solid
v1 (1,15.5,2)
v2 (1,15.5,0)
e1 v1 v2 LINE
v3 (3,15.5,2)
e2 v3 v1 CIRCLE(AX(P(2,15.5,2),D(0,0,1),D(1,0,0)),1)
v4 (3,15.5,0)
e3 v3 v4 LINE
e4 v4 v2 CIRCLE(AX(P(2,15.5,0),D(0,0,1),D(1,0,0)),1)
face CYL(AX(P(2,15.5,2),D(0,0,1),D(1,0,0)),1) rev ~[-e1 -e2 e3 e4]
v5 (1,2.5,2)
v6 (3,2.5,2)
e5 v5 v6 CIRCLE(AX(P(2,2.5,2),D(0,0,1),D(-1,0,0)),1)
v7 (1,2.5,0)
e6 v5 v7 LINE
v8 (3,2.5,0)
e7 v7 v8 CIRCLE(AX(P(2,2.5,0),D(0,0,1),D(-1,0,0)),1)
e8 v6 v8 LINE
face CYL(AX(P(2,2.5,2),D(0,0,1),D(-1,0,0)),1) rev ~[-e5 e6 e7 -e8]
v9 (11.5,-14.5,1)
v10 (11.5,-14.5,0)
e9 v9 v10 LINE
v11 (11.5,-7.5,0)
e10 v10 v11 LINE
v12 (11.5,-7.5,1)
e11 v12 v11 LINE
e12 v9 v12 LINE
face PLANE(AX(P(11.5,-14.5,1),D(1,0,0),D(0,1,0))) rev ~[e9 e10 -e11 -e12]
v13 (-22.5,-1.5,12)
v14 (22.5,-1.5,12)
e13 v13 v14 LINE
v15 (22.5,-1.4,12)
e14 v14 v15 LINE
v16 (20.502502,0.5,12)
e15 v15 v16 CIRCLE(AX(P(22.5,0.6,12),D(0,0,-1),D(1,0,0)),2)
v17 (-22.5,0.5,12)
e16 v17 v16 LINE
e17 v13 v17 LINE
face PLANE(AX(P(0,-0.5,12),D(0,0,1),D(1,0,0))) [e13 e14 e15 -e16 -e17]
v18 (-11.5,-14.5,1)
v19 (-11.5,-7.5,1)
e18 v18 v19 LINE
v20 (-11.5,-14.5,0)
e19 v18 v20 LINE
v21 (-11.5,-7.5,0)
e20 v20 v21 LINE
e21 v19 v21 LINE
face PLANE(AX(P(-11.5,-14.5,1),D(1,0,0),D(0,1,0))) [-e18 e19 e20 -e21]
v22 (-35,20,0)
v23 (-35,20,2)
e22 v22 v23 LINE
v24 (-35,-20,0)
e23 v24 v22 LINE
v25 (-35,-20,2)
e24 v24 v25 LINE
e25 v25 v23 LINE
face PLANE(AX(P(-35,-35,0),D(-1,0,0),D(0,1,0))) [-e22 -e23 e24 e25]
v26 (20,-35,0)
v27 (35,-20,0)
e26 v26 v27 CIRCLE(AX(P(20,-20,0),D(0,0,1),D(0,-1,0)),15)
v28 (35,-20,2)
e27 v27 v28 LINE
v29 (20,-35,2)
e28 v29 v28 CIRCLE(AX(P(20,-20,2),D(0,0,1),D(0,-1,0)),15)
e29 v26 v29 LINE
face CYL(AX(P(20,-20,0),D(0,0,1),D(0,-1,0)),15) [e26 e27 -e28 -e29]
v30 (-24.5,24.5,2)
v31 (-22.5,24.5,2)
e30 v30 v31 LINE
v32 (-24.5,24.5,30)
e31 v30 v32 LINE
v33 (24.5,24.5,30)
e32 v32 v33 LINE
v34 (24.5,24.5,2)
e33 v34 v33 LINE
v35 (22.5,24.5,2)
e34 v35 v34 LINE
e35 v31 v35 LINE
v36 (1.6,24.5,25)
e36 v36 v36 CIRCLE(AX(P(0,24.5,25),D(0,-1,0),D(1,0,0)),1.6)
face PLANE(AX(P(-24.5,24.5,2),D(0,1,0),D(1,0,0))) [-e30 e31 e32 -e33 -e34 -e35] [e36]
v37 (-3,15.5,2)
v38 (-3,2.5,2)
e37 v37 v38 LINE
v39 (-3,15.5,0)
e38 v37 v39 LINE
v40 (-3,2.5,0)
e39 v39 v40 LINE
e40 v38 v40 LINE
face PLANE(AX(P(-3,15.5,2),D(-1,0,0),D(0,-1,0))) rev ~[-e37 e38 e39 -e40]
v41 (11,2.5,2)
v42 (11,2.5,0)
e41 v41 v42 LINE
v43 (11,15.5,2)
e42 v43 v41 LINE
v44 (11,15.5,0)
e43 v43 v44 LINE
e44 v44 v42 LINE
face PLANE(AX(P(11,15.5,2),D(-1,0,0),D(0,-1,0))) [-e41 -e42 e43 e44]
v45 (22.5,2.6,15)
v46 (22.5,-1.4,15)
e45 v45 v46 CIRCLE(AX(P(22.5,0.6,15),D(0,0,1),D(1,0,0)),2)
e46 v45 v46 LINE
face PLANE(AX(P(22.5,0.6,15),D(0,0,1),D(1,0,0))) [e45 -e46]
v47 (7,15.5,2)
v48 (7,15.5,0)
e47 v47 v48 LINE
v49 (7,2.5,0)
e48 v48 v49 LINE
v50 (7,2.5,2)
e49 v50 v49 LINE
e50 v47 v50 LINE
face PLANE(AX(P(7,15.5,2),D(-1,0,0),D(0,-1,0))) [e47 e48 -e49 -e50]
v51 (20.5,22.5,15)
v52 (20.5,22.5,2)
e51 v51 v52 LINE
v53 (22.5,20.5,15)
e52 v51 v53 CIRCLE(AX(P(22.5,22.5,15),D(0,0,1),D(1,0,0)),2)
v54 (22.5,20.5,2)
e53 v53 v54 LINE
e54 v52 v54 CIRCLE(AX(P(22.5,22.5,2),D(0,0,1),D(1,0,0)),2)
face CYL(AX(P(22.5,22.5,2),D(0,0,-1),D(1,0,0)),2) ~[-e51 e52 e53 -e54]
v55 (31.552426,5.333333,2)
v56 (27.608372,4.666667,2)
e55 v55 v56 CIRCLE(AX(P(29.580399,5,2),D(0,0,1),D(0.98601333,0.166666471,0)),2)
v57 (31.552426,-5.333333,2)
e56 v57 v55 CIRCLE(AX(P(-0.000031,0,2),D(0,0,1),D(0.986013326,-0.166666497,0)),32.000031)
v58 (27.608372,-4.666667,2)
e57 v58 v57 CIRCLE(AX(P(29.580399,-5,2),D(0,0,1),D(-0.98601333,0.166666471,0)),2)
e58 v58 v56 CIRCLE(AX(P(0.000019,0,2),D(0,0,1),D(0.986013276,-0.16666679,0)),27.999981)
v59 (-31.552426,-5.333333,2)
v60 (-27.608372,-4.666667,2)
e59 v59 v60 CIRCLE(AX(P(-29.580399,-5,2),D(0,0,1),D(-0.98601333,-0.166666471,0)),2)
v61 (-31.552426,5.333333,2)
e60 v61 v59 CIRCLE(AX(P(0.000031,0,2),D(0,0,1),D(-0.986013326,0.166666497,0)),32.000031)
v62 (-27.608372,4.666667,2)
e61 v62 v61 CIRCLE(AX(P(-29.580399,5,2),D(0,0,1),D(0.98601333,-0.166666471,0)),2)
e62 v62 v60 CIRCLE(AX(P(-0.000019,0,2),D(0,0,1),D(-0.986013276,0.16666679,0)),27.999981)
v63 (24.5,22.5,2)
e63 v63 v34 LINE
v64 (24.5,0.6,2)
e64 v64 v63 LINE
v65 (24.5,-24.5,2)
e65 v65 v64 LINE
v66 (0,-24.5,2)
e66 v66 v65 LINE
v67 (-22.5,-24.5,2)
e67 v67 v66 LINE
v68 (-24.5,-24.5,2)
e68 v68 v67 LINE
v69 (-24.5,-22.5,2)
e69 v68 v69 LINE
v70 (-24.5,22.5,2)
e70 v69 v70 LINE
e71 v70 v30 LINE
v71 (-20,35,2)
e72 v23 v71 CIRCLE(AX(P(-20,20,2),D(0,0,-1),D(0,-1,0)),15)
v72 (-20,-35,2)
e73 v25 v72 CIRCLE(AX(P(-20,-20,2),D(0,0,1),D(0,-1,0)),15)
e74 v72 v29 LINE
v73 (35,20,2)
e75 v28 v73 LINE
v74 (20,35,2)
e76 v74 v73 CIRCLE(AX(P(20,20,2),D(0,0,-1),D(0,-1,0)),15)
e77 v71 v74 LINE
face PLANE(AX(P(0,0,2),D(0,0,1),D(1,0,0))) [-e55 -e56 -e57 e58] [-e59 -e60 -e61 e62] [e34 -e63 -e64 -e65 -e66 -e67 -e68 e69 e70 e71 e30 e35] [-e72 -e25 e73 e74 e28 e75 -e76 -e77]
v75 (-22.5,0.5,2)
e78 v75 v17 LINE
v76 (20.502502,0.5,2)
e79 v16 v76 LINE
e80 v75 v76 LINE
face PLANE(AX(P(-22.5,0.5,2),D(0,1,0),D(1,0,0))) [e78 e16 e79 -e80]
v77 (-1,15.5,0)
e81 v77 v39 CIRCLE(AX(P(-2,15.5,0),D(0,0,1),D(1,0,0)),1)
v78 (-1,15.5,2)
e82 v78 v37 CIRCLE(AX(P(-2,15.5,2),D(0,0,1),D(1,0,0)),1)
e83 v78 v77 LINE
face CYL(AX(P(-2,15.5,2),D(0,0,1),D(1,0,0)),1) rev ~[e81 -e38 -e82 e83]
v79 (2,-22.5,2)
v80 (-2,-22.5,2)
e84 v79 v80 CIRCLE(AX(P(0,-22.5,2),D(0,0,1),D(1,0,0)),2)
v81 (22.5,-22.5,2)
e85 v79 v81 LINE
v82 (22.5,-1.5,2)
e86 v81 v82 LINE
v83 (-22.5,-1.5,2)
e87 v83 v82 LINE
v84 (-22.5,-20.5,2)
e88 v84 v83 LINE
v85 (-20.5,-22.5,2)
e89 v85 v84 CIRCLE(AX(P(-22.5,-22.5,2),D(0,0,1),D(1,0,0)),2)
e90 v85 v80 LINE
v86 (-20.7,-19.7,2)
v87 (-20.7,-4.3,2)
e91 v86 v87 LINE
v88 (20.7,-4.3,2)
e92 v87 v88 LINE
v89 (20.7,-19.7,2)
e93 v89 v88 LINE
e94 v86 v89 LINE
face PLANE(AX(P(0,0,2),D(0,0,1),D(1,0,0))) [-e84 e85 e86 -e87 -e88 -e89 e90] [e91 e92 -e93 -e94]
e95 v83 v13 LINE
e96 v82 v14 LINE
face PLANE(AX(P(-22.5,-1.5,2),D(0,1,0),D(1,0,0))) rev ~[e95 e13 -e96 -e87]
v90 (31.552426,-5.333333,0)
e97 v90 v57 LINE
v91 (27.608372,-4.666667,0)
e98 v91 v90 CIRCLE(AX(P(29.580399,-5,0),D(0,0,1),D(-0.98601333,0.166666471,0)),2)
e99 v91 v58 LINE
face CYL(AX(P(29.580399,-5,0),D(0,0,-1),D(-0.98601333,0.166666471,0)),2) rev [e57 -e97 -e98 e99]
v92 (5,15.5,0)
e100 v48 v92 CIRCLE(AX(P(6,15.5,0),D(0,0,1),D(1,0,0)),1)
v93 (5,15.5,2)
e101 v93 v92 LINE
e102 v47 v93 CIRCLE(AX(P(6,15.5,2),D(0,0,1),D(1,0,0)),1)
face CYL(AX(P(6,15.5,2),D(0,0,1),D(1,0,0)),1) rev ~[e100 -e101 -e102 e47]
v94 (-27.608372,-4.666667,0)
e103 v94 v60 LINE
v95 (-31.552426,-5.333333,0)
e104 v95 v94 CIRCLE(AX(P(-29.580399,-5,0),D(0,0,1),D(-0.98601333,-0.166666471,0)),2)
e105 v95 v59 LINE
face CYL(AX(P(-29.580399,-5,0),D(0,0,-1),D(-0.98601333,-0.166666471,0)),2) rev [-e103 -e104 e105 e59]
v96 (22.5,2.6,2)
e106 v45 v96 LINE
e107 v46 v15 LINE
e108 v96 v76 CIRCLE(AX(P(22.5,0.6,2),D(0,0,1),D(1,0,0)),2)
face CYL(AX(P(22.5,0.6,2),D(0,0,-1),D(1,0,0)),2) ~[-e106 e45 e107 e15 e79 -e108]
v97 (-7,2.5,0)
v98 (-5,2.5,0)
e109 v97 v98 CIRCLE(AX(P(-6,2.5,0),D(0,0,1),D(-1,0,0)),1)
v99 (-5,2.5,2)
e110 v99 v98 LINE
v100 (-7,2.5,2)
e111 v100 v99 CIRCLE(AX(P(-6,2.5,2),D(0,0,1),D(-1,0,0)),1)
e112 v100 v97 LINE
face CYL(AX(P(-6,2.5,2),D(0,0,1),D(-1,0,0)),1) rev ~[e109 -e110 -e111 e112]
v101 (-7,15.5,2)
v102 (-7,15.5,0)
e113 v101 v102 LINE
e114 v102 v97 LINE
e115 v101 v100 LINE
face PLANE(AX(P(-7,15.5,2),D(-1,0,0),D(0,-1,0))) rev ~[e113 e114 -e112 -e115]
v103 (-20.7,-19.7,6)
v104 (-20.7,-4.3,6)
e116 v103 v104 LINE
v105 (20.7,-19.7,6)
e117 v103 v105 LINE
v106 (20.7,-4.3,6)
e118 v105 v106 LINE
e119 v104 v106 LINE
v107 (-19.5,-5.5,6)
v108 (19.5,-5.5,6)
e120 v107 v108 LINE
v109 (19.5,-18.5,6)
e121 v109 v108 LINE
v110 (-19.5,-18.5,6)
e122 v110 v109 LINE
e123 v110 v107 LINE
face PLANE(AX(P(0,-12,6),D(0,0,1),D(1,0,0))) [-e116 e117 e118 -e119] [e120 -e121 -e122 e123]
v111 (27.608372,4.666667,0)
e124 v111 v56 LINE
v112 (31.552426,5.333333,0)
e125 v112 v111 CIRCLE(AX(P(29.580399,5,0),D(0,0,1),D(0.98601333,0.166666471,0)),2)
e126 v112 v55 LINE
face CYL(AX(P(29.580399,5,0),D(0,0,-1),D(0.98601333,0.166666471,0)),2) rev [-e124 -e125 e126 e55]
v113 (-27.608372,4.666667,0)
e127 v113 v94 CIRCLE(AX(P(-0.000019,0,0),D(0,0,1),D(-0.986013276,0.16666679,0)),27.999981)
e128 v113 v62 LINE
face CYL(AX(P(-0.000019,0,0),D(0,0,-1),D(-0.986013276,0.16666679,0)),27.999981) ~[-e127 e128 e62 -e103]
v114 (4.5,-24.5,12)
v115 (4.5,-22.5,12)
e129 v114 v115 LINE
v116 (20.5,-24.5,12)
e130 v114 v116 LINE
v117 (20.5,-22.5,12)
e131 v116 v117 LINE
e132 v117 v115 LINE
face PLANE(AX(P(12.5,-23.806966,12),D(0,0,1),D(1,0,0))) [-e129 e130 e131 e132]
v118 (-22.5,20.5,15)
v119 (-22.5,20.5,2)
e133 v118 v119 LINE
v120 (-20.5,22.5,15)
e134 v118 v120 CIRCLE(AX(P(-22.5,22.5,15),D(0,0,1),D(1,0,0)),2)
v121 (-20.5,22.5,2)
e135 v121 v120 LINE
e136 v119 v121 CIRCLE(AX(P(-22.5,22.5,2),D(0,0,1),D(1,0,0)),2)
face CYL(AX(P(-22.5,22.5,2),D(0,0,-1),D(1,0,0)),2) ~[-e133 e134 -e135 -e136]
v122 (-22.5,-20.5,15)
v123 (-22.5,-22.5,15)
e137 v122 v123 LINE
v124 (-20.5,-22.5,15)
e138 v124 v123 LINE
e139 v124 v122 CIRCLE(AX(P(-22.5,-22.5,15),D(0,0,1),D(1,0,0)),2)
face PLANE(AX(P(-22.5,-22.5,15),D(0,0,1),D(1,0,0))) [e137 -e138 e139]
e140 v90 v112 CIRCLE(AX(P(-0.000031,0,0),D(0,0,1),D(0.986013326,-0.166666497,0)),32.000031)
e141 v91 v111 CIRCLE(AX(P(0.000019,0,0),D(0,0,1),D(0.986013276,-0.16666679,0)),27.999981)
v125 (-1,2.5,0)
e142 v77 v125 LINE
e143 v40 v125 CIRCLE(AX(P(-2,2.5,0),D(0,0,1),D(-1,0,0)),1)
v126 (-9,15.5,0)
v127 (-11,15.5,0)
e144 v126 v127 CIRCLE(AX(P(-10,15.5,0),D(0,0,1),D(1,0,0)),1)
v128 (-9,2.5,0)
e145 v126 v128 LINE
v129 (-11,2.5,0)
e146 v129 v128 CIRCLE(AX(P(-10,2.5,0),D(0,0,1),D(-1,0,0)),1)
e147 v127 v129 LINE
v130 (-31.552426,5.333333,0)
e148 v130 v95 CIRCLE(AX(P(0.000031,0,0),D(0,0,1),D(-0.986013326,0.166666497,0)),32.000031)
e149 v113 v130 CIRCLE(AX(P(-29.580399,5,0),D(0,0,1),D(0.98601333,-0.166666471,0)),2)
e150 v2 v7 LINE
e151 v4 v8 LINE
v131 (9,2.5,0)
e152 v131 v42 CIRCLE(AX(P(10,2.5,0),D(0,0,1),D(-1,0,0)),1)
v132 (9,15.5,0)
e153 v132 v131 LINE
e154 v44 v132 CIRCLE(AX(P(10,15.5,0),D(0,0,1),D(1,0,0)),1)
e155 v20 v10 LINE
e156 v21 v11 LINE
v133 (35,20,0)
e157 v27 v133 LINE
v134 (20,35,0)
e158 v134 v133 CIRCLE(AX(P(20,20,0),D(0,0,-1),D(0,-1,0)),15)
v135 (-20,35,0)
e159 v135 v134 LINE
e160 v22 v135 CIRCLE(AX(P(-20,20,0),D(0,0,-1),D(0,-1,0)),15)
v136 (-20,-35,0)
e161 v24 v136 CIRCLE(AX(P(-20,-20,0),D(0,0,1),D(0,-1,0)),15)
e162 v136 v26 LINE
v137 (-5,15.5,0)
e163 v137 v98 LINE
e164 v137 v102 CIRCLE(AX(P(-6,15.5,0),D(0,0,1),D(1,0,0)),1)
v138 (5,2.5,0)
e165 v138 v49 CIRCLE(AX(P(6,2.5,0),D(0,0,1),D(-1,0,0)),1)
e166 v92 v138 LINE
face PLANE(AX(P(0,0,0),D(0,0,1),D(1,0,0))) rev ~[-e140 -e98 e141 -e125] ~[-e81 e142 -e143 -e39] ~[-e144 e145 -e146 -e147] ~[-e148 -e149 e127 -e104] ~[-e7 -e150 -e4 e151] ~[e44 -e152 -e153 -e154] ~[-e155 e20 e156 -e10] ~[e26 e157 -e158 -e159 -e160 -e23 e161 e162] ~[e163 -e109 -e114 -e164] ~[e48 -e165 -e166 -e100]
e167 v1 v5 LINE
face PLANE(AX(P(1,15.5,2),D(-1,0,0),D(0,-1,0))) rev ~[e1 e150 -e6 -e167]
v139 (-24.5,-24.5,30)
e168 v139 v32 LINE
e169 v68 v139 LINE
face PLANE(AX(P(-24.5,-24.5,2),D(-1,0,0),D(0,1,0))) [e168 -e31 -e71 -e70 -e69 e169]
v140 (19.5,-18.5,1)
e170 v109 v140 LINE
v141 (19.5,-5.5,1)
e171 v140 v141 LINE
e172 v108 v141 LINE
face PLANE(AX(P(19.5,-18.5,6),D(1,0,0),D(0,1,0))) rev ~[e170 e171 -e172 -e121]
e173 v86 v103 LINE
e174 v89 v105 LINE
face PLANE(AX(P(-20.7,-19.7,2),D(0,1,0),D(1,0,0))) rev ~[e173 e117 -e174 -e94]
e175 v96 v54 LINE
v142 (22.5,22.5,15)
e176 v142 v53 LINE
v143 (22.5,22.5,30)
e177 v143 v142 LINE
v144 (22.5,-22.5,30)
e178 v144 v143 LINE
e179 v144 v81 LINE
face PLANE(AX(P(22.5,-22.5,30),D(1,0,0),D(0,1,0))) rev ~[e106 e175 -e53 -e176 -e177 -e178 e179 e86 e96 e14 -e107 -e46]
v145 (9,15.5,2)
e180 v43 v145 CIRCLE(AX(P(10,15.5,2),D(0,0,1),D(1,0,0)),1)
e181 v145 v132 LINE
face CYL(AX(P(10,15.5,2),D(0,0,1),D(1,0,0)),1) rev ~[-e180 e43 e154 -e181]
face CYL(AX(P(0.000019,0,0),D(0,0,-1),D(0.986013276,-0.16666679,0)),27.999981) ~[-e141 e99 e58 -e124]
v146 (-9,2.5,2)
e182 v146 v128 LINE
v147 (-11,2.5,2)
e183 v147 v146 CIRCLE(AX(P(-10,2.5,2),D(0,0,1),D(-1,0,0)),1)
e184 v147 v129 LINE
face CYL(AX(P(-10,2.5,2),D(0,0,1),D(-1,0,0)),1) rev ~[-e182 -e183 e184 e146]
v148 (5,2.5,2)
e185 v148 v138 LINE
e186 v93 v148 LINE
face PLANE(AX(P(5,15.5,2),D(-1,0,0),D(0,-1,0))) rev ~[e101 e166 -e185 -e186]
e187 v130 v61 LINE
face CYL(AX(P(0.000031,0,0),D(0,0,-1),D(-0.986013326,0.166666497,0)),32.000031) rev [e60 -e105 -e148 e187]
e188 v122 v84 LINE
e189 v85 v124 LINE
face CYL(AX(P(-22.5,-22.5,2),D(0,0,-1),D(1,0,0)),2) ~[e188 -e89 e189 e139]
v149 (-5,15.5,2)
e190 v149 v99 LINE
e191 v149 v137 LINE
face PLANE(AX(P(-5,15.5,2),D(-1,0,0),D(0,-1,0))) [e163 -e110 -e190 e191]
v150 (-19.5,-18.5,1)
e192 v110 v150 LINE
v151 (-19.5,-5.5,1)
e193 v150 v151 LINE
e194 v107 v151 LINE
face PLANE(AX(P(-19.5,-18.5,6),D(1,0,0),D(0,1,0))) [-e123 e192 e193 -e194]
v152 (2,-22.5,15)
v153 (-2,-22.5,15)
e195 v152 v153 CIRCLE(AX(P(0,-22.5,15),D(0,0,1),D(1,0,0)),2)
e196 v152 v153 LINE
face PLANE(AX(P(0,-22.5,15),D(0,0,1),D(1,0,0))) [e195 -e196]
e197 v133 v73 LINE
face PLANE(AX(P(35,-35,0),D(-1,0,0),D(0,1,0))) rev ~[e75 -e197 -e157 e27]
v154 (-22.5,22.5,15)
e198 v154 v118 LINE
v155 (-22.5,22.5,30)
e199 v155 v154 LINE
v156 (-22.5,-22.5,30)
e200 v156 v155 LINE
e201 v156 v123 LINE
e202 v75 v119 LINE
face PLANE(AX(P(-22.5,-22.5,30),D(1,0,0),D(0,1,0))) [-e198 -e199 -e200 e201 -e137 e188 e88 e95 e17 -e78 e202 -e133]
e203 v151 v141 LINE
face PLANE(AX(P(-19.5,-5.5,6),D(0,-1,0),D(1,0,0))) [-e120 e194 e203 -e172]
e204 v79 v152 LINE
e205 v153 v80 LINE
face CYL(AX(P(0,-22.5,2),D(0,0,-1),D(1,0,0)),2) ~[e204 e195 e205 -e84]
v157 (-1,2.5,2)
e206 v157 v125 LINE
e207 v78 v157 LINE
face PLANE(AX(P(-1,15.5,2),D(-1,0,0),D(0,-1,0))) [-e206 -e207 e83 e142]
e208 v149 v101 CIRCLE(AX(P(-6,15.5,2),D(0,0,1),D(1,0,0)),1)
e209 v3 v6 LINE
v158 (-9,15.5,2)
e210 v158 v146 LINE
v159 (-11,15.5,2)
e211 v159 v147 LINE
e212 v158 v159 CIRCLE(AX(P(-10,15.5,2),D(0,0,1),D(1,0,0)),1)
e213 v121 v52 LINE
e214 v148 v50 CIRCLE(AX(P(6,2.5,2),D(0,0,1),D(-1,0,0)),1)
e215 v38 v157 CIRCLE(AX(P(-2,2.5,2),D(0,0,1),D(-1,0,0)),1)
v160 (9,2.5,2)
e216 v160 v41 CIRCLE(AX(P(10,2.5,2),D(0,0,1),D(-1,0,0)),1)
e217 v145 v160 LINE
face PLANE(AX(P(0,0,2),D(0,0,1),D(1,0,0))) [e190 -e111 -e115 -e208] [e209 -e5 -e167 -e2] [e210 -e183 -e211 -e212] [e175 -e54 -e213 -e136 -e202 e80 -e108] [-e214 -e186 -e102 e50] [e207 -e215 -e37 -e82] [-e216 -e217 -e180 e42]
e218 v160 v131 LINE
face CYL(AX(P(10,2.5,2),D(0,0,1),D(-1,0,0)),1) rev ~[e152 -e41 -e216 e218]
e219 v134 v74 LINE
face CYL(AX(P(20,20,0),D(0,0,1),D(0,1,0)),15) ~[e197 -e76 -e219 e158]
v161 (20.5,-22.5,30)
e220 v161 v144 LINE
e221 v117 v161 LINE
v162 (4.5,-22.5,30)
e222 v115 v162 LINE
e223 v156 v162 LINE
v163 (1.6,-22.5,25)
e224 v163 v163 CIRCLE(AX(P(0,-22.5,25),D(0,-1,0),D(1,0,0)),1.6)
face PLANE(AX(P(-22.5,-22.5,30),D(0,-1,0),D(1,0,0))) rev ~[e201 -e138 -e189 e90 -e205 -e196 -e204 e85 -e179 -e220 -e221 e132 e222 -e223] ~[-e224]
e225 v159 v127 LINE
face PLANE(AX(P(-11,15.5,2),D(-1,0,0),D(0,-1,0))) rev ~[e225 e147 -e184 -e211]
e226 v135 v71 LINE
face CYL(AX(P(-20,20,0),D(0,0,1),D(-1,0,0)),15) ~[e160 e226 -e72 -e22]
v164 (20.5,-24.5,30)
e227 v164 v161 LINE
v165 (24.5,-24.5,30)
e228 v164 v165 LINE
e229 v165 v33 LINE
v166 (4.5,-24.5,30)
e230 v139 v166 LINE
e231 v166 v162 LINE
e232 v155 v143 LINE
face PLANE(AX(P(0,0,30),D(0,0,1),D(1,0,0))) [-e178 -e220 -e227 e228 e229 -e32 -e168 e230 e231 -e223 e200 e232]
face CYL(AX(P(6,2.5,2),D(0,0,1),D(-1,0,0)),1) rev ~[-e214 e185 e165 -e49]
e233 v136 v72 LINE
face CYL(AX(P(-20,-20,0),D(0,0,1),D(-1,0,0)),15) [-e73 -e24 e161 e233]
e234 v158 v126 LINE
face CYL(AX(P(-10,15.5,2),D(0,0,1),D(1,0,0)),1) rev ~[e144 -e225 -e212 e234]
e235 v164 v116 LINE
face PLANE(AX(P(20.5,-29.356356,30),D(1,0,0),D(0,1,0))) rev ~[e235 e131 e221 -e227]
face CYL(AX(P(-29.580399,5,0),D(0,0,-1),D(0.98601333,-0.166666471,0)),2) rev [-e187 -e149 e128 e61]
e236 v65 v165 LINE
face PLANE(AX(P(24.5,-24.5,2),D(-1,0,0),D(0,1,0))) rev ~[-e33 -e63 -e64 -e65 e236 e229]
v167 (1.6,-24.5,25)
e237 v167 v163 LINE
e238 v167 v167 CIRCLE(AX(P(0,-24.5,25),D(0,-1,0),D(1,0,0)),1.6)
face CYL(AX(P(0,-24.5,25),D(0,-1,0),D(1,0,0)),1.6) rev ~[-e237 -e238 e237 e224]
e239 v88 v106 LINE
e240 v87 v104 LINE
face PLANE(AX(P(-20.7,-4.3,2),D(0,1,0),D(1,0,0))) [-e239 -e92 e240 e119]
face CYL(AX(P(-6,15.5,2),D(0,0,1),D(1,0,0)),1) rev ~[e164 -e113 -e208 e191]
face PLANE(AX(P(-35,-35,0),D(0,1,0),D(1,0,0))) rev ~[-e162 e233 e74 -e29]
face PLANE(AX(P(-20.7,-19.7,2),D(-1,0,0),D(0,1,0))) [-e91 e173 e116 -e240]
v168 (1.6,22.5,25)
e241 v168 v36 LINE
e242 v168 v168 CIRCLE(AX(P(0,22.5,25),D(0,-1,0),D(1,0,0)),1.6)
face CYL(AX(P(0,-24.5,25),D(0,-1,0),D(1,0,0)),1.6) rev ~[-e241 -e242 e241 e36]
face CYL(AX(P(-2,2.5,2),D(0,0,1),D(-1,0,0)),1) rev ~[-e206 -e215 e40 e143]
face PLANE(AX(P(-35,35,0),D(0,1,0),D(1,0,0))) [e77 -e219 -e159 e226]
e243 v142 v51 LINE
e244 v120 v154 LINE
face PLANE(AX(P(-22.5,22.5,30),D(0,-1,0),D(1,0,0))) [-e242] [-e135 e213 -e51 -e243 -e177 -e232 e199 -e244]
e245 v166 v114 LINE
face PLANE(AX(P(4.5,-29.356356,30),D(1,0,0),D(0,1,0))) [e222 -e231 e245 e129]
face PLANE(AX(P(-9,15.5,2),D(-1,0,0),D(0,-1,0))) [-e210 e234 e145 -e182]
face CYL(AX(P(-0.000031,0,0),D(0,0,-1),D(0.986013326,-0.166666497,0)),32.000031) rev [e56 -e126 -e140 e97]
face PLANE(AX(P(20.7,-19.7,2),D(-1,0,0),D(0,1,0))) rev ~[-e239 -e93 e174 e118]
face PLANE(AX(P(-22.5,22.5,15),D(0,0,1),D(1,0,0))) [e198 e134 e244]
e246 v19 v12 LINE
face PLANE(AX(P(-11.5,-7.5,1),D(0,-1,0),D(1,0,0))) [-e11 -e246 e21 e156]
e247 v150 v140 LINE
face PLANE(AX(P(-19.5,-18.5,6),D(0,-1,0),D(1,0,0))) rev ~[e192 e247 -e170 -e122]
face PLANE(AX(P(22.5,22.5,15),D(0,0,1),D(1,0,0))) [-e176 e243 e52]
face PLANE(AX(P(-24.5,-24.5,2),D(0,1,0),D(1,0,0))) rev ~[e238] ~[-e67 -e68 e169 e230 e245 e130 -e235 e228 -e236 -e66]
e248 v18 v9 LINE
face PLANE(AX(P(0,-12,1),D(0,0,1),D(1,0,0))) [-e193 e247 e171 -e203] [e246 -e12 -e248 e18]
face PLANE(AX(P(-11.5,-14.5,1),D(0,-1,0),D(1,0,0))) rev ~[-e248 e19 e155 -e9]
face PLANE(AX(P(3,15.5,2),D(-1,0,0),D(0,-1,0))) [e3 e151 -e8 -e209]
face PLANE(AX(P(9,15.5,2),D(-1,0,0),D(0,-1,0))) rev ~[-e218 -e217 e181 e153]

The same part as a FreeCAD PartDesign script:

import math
import FreeCAD as App
import Part
import Sketcher

V = App.Vector


def edges_at(feature, points):
    """Names of the edges that pass closest to the given points."""
    edges = feature.Shape.Edges
    near = lambda p: min(range(len(edges)), key=lambda i: edges[i].distToShape(Part.Vertex(*p))[0])
    return sorted({f"Edge{near(p) + 1}" for p in points})

doc = App.newDocument("Part")
params = doc.addObject("Spreadsheet::Sheet", "Params")
for row, (alias, value) in enumerate([
    ("sketch1_radius", "2 mm"),
    ("sketch1_radius2", "2 mm"),
    ("sketch1_width", "70 mm"),
    ("sketch1_height", "70 mm"),
    ("pad1_length", "2 mm"),
    ("sketch2_width", "49 mm"),
    ("pad2_length", "28 mm"),
    ("sketch3_width", "45 mm"),
    ("pocket1_length", "28 mm"),
    ("sketch4_width", "16 mm"),
    ("pocket2_length", "18 mm"),
    ("sketch5_width", "45 mm"),
    ("sketch5_height", "2 mm"),
    ("pad3_length", "10 mm"),
    ("sketch6_width", "41.4 mm"),
    ("sketch6_height", "15.4 mm"),
    ("pad4_length", "4 mm"),
    ("sketch7_width", "39 mm"),
    ("sketch7_height", "13 mm"),
    ("pocket3_length", "5 mm"),
    ("sketch8_width", "23 mm"),
    ("sketch8_height", "7 mm"),
    ("sketch9_radius", "1 mm"),
    ("sketch9_height", "13 mm"),
    ("pocket5_length", "5 mm"),
    ("sketch10_diameter", "3.2 mm"),
    ("fillet_radius", "15 mm"),
    ("sketch11_diameter", "4 mm"),
    ("pad5_length", "13 mm"),
], start=1):
    params.set(f"A{row}", alias)
    params.set(f"B{row}", "=" + value)
    params.setAlias(f"B{row}", alias)

body = doc.addObject("PartDesign::Body", "Body")

sketch1 = body.newObject("Sketcher::SketchObject", "Sketch")
sketch1.AttachmentSupport = (doc.getObject("XY_Plane"), [""])
sketch1.MapMode = "FlatFace"
sketch1.addGeometry(Part.LineSegment(V(-35, 35, 0), V(-35, -35, 0)), False)
sketch1.addGeometry(Part.LineSegment(V(-35, -35, 0), V(35, -35, 0)), False)
sketch1.addGeometry(Part.LineSegment(V(35, -35, 0), V(35, 35, 0)), False)
sketch1.addGeometry(Part.LineSegment(V(35, 35, 0), V(-35, 35, 0)), False)
sketch1.addGeometry(Part.ArcOfCircle(Part.Circle(V(-29.580399, 5, 0), V(0, 0, 1), 2), math.radians(-9.594057), math.radians(170.405943)), False)
sketch1.addGeometry(Part.ArcOfCircle(Part.Circle(V(-0.000019, 0, 0), V(0, 0, 1), 27.999981), math.radians(170.405925), math.radians(189.594075)), False)
sketch1.addGeometry(Part.ArcOfCircle(Part.Circle(V(-29.580399, -5, 0), V(0, 0, 1), 2), math.radians(-170.405943), math.radians(9.594057)), False)
sketch1.addGeometry(Part.ArcOfCircle(Part.Circle(V(0.000031, 0, 0), V(0, 0, 1), 32.000031), math.radians(170.405942), math.radians(189.594058)), False)
sketch1.addGeometry(Part.ArcOfCircle(Part.Circle(V(29.580399, -5, 0), V(0, 0, 1), 2), math.radians(170.405943), math.radians(350.405943)), False)
sketch1.addGeometry(Part.ArcOfCircle(Part.Circle(V(0.000019, 0, 0), V(0, 0, 1), 27.999981), math.radians(-9.594075), math.radians(9.594075)), False)
sketch1.addGeometry(Part.ArcOfCircle(Part.Circle(V(29.580399, 5, 0), V(0, 0, 1), 2), math.radians(9.594057), math.radians(189.594057)), False)
sketch1.addGeometry(Part.ArcOfCircle(Part.Circle(V(-0.000031, 0, 0), V(0, 0, 1), 32.000031), math.radians(-9.594058), math.radians(9.594058)), False)
sketch1.addConstraint(Sketcher.Constraint("Coincident", 0, 2, 1, 1))
sketch1.addConstraint(Sketcher.Constraint("Coincident", 1, 2, 2, 1))
sketch1.addConstraint(Sketcher.Constraint("Coincident", 2, 2, 3, 1))
sketch1.addConstraint(Sketcher.Constraint("Coincident", 3, 2, 0, 1))
sketch1.addConstraint(Sketcher.Constraint("Coincident", 4, 1, 5, 1))
sketch1.addConstraint(Sketcher.Constraint("Coincident", 5, 2, 6, 2))
sketch1.addConstraint(Sketcher.Constraint("Coincident", 6, 1, 7, 2))
sketch1.addConstraint(Sketcher.Constraint("Coincident", 7, 1, 4, 2))
sketch1.addConstraint(Sketcher.Constraint("Coincident", 8, 1, 9, 1))
sketch1.addConstraint(Sketcher.Constraint("Coincident", 9, 2, 10, 2))
sketch1.addConstraint(Sketcher.Constraint("Coincident", 10, 1, 11, 2))
sketch1.addConstraint(Sketcher.Constraint("Coincident", 11, 1, 8, 2))
sketch1.addConstraint(Sketcher.Constraint("Vertical", 0))
sketch1.addConstraint(Sketcher.Constraint("Horizontal", 1))
sketch1.addConstraint(Sketcher.Constraint("Vertical", 2))
sketch1.addConstraint(Sketcher.Constraint("Horizontal", 3))
sketch1.addConstraint(Sketcher.Constraint("PointOnObject", 5, 3, -1))
sketch1.addConstraint(Sketcher.Constraint("PointOnObject", 7, 3, -1))
sketch1.addConstraint(Sketcher.Constraint("PointOnObject", 9, 3, -1))
sketch1.addConstraint(Sketcher.Constraint("PointOnObject", 11, 3, -1))
sketch1.addConstraint(Sketcher.Constraint("Radius", 4, 2.0))
sketch1.addConstraint(Sketcher.Constraint("Radius", 8, 2.0))
sketch1.addConstraint(Sketcher.Constraint("DistanceX", 1, 1, 1, 2, 70.0))
sketch1.addConstraint(Sketcher.Constraint("DistanceY", 0, 2, 0, 1, 70.0))
sketch1.addConstraint(Sketcher.Constraint("DistanceY", -1, 1, 4, 3, 5.0))
sketch1.addConstraint(Sketcher.Constraint("DistanceY", 6, 3, -1, 1, 5.0))
sketch1.addConstraint(Sketcher.Constraint("DistanceY", 8, 3, -1, 1, 5.0))
sketch1.addConstraint(Sketcher.Constraint("DistanceY", -1, 1, 10, 3, 5.0))
sketch1.addConstraint(Sketcher.Constraint("DistanceX", 0, 2, -1, 1, 35.0))
sketch1.addConstraint(Sketcher.Constraint("DistanceY", 0, 2, -1, 1, 35.0))
sketch1.addConstraint(Sketcher.Constraint("DistanceY", 6, 1, 4, 1, 10.0))
sketch1.addConstraint(Sketcher.Constraint("DistanceY", 5, 2, 7, 1, 10.0))
sketch1.addConstraint(Sketcher.Constraint("DistanceY", 8, 1, 10, 1, 10.0))
sketch1.addConstraint(Sketcher.Constraint("DistanceY", 11, 1, 9, 2, 10.0))
sketch1.addConstraint(Sketcher.Constraint("Radius", 5, 27.999981))
sketch1.addConstraint(Sketcher.Constraint("Radius", 7, 32.000031))
sketch1.addConstraint(Sketcher.Constraint("Radius", 9, 27.999981))
sketch1.addConstraint(Sketcher.Constraint("Radius", 11, 32.000031))
sketch1.addConstraint(Sketcher.Constraint("DistanceX", 4, 3, -1, 1, 29.580399))
sketch1.addConstraint(Sketcher.Constraint("DistanceX", -1, 1, 8, 3, 29.580399))
sketch1.addConstraint(Sketcher.Constraint("DistanceX", 5, 2, -1, 1, 27.608372))
sketch1.addConstraint(Sketcher.Constraint("DistanceX", -1, 1, 9, 2, 27.608372))
sketch1.addConstraint(Sketcher.Constraint("DistanceX", 4, 1, 11, 3, 27.608341))
sketch1.addConstraint(Sketcher.Constraint("DistanceX", 7, 3, 8, 1, 27.608341))
sketch1.setExpression("Constraints[20]", "Params.sketch1_radius")
sketch1.setExpression("Constraints[21]", "Params.sketch1_radius2")
sketch1.setExpression("Constraints[22]", "Params.sketch1_width")
sketch1.setExpression("Constraints[23]", "Params.sketch1_height")
pad1 = body.newObject("PartDesign::Pad", "Pad")
pad1.Profile = sketch1
pad1.setExpression("Length", "Params.pad1_length")

sketch2 = body.newObject("Sketcher::SketchObject", "Sketch001")
sketch2.AttachmentSupport = (doc.getObject("XY_Plane"), [""])
sketch2.MapMode = "FlatFace"
sketch2.AttachmentOffset = App.Placement(V(0, 0, 2), App.Rotation())
sketch2.addGeometry(Part.LineSegment(V(-24, 24, 0), V(-24, -24, 0)), False)
sketch2.addGeometry(Part.LineSegment(V(-24, -24, 0), V(24, -24, 0)), False)
sketch2.addGeometry(Part.LineSegment(V(24, -24, 0), V(24, 24, 0)), False)
sketch2.addGeometry(Part.LineSegment(V(24, 24, 0), V(-24, 24, 0)), False)
sketch2.addConstraint(Sketcher.Constraint("Coincident", 0, 2, 1, 1))
sketch2.addConstraint(Sketcher.Constraint("Coincident", 1, 2, 2, 1))
sketch2.addConstraint(Sketcher.Constraint("Coincident", 2, 2, 3, 1))
sketch2.addConstraint(Sketcher.Constraint("Coincident", 3, 2, 0, 1))
sketch2.addConstraint(Sketcher.Constraint("Vertical", 0))
sketch2.addConstraint(Sketcher.Constraint("Horizontal", 1))
sketch2.addConstraint(Sketcher.Constraint("Vertical", 2))
sketch2.addConstraint(Sketcher.Constraint("Horizontal", 3))
sketch2.addConstraint(Sketcher.Constraint("Symmetric", 0, 2, 2, 2, -1, 1))
sketch2.addConstraint(Sketcher.Constraint("Equal", 3, 0))
sketch2.addConstraint(Sketcher.Constraint("DistanceX", 1, 1, 1, 2, 49.0))
sketch2.setExpression("Constraints[10]", "Params.sketch2_width")
pad2 = body.newObject("PartDesign::Pad", "Pad001")
pad2.Profile = sketch2
pad2.setExpression("Length", "Params.pad2_length")

sketch3 = body.newObject("Sketcher::SketchObject", "Sketch002")
sketch3.AttachmentSupport = (doc.getObject("XY_Plane"), [""])
sketch3.MapMode = "FlatFace"
sketch3.AttachmentOffset = App.Placement(V(0, 0, 30), App.Rotation())
sketch3.addGeometry(Part.LineSegment(V(-22, 22, 0), V(-22, -22, 0)), False)
sketch3.addGeometry(Part.LineSegment(V(-22, -22, 0), V(22, -22, 0)), False)
sketch3.addGeometry(Part.LineSegment(V(22, -22, 0), V(22, 22, 0)), False)
sketch3.addGeometry(Part.LineSegment(V(22, 22, 0), V(-22, 22, 0)), False)
sketch3.addConstraint(Sketcher.Constraint("Coincident", 0, 2, 1, 1))
sketch3.addConstraint(Sketcher.Constraint("Coincident", 1, 2, 2, 1))
sketch3.addConstraint(Sketcher.Constraint("Coincident", 2, 2, 3, 1))
sketch3.addConstraint(Sketcher.Constraint("Coincident", 3, 2, 0, 1))
sketch3.addConstraint(Sketcher.Constraint("Vertical", 0))
sketch3.addConstraint(Sketcher.Constraint("Horizontal", 1))
sketch3.addConstraint(Sketcher.Constraint("Vertical", 2))
sketch3.addConstraint(Sketcher.Constraint("Horizontal", 3))
sketch3.addConstraint(Sketcher.Constraint("Symmetric", 0, 2, 2, 2, -1, 1))
sketch3.addConstraint(Sketcher.Constraint("Equal", 3, 0))
sketch3.addConstraint(Sketcher.Constraint("DistanceX", 1, 1, 1, 2, 45.0))
sketch3.setExpression("Constraints[10]", "Params.sketch3_width")
pocket1 = body.newObject("PartDesign::Pocket", "Pocket")
pocket1.Profile = sketch3
pocket1.setExpression("Length", "Params.pocket1_length")

sketch4 = body.newObject("Sketcher::SketchObject", "Sketch003")
sketch4.AttachmentSupport = (doc.getObject("XY_Plane"), [""])
sketch4.MapMode = "FlatFace"
sketch4.AttachmentOffset = App.Placement(V(0, 0, 30), App.Rotation())
sketch4.addGeometry(Part.LineSegment(V(4, -18, 0), V(4, -29, 0)), False)
sketch4.addGeometry(Part.LineSegment(V(4, -29, 0), V(20, -29, 0)), False)
sketch4.addGeometry(Part.LineSegment(V(20, -29, 0), V(20, -18, 0)), False)
sketch4.addGeometry(Part.LineSegment(V(20, -18, 0), V(4, -18, 0)), False)
sketch4.addConstraint(Sketcher.Constraint("Coincident", 0, 2, 1, 1))
sketch4.addConstraint(Sketcher.Constraint("Coincident", 1, 2, 2, 1))
sketch4.addConstraint(Sketcher.Constraint("Coincident", 2, 2, 3, 1))
sketch4.addConstraint(Sketcher.Constraint("Coincident", 3, 2, 0, 1))
sketch4.addConstraint(Sketcher.Constraint("Vertical", 0))
sketch4.addConstraint(Sketcher.Constraint("Horizontal", 1))
sketch4.addConstraint(Sketcher.Constraint("Vertical", 2))
sketch4.addConstraint(Sketcher.Constraint("Horizontal", 3))
sketch4.addConstraint(Sketcher.Constraint("DistanceX", 1, 1, 1, 2, 16.0))
sketch4.addConstraint(Sketcher.Constraint("DistanceX", -1, 1, 0, 2, 4.5))
sketch4.addConstraint(Sketcher.Constraint("DistanceY", 0, 2, 0, 1, 11.09878))
sketch4.addConstraint(Sketcher.Constraint("DistanceY", 0, 2, -1, 1, 29.356356))
sketch4.setExpression("Constraints[8]", "Params.sketch4_width")
pocket2 = body.newObject("PartDesign::Pocket", "Pocket001")
pocket2.Profile = sketch4
pocket2.setExpression("Length", "Params.pocket2_length")

sketch5 = body.newObject("Sketcher::SketchObject", "Sketch004")
sketch5.AttachmentSupport = (doc.getObject("XY_Plane"), [""])
sketch5.MapMode = "FlatFace"
sketch5.AttachmentOffset = App.Placement(V(0, 0, 2), App.Rotation())
sketch5.addGeometry(Part.LineSegment(V(-22.5, 0.5, 0), V(-22.5, -1.5, 0)), False)
sketch5.addGeometry(Part.LineSegment(V(-22.5, -1.5, 0), V(22.5, -1.5, 0)), False)
sketch5.addGeometry(Part.LineSegment(V(22.5, -1.5, 0), V(22.5, 0.5, 0)), False)
sketch5.addGeometry(Part.LineSegment(V(22.5, 0.5, 0), V(-22.5, 0.5, 0)), False)
sketch5.addConstraint(Sketcher.Constraint("Coincident", 0, 2, 1, 1))
sketch5.addConstraint(Sketcher.Constraint("Coincident", 1, 2, 2, 1))
sketch5.addConstraint(Sketcher.Constraint("Coincident", 2, 2, 3, 1))
sketch5.addConstraint(Sketcher.Constraint("Coincident", 3, 2, 0, 1))
sketch5.addConstraint(Sketcher.Constraint("Vertical", 0))
sketch5.addConstraint(Sketcher.Constraint("Horizontal", 1))
sketch5.addConstraint(Sketcher.Constraint("Vertical", 2))
sketch5.addConstraint(Sketcher.Constraint("Horizontal", 3))
sketch5.addConstraint(Sketcher.Constraint("DistanceX", 1, 1, 1, 2, 45.0))
sketch5.addConstraint(Sketcher.Constraint("DistanceY", 0, 2, 0, 1, 2.0))
sketch5.addConstraint(Sketcher.Constraint("DistanceX", 0, 2, -1, 1, 22.5))
sketch5.addConstraint(Sketcher.Constraint("DistanceY", 0, 2, -1, 1, 1.5))
sketch5.setExpression("Constraints[8]", "Params.sketch5_width")
sketch5.setExpression("Constraints[9]", "Params.sketch5_height")
pad3 = body.newObject("PartDesign::Pad", "Pad002")
pad3.Profile = sketch5
pad3.setExpression("Length", "Params.pad3_length")

sketch6 = body.newObject("Sketcher::SketchObject", "Sketch005")
sketch6.AttachmentSupport = (doc.getObject("XY_Plane"), [""])
sketch6.MapMode = "FlatFace"
sketch6.AttachmentOffset = App.Placement(V(0, 0, 2), App.Rotation())
sketch6.addGeometry(Part.LineSegment(V(-21, -4, 0), V(-21, -20, 0)), False)
sketch6.addGeometry(Part.LineSegment(V(-21, -20, 0), V(21, -20, 0)), False)
sketch6.addGeometry(Part.LineSegment(V(21, -20, 0), V(21, -4, 0)), False)
sketch6.addGeometry(Part.LineSegment(V(21, -4, 0), V(-21, -4, 0)), False)
sketch6.addConstraint(Sketcher.Constraint("Coincident", 0, 2, 1, 1))
sketch6.addConstraint(Sketcher.Constraint("Coincident", 1, 2, 2, 1))
sketch6.addConstraint(Sketcher.Constraint("Coincident", 2, 2, 3, 1))
sketch6.addConstraint(Sketcher.Constraint("Coincident", 3, 2, 0, 1))
sketch6.addConstraint(Sketcher.Constraint("Vertical", 0))
sketch6.addConstraint(Sketcher.Constraint("Horizontal", 1))
sketch6.addConstraint(Sketcher.Constraint("Vertical", 2))
sketch6.addConstraint(Sketcher.Constraint("Horizontal", 3))
sketch6.addConstraint(Sketcher.Constraint("DistanceX", 1, 1, 1, 2, 41.4))
sketch6.addConstraint(Sketcher.Constraint("DistanceY", 0, 2, 0, 1, 15.4))
sketch6.addConstraint(Sketcher.Constraint("DistanceX", 0, 2, -1, 1, 20.7))
sketch6.addConstraint(Sketcher.Constraint("DistanceY", 0, 2, -1, 1, 19.7))
sketch6.setExpression("Constraints[8]", "Params.sketch6_width")
sketch6.setExpression("Constraints[9]", "Params.sketch6_height")
pad4 = body.newObject("PartDesign::Pad", "Pad003")
pad4.Profile = sketch6
pad4.setExpression("Length", "Params.pad4_length")

sketch7 = body.newObject("Sketcher::SketchObject", "Sketch006")
sketch7.AttachmentSupport = (doc.getObject("XY_Plane"), [""])
sketch7.MapMode = "FlatFace"
sketch7.AttachmentOffset = App.Placement(V(0, 0, 6), App.Rotation())
sketch7.addGeometry(Part.LineSegment(V(-20, -6, 0), V(-20, -18, 0)), False)
sketch7.addGeometry(Part.LineSegment(V(-20, -18, 0), V(20, -18, 0)), False)
sketch7.addGeometry(Part.LineSegment(V(20, -18, 0), V(20, -6, 0)), False)
sketch7.addGeometry(Part.LineSegment(V(20, -6, 0), V(-20, -6, 0)), False)
sketch7.addConstraint(Sketcher.Constraint("Coincident", 0, 2, 1, 1))
sketch7.addConstraint(Sketcher.Constraint("Coincident", 1, 2, 2, 1))
sketch7.addConstraint(Sketcher.Constraint("Coincident", 2, 2, 3, 1))
sketch7.addConstraint(Sketcher.Constraint("Coincident", 3, 2, 0, 1))
sketch7.addConstraint(Sketcher.Constraint("Vertical", 0))
sketch7.addConstraint(Sketcher.Constraint("Horizontal", 1))
sketch7.addConstraint(Sketcher.Constraint("Vertical", 2))
sketch7.addConstraint(Sketcher.Constraint("Horizontal", 3))
sketch7.addConstraint(Sketcher.Constraint("DistanceX", 1, 1, 1, 2, 39.0))
sketch7.addConstraint(Sketcher.Constraint("DistanceY", 0, 2, 0, 1, 13.0))
sketch7.addConstraint(Sketcher.Constraint("DistanceX", 0, 2, -1, 1, 19.5))
sketch7.addConstraint(Sketcher.Constraint("DistanceY", 0, 2, -1, 1, 18.5))
sketch7.setExpression("Constraints[8]", "Params.sketch7_width")
sketch7.setExpression("Constraints[9]", "Params.sketch7_height")
pocket3 = body.newObject("PartDesign::Pocket", "Pocket002")
pocket3.Profile = sketch7
pocket3.setExpression("Length", "Params.pocket3_length")

sketch8 = body.newObject("Sketcher::SketchObject", "Sketch007")
sketch8.AttachmentSupport = (doc.getObject("XY_Plane"), [""])
sketch8.MapMode = "FlatFace"
sketch8.AttachmentOffset = App.Placement(V(0, 0, 1), App.Rotation())
sketch8.addGeometry(Part.LineSegment(V(-12, -8, 0), V(-12, -14, 0)), False)
sketch8.addGeometry(Part.LineSegment(V(-12, -14, 0), V(12, -14, 0)), False)
sketch8.addGeometry(Part.LineSegment(V(12, -14, 0), V(12, -8, 0)), False)
sketch8.addGeometry(Part.LineSegment(V(12, -8, 0), V(-12, -8, 0)), False)
sketch8.addConstraint(Sketcher.Constraint("Coincident", 0, 2, 1, 1))
sketch8.addConstraint(Sketcher.Constraint("Coincident", 1, 2, 2, 1))
sketch8.addConstraint(Sketcher.Constraint("Coincident", 2, 2, 3, 1))
sketch8.addConstraint(Sketcher.Constraint("Coincident", 3, 2, 0, 1))
sketch8.addConstraint(Sketcher.Constraint("Vertical", 0))
sketch8.addConstraint(Sketcher.Constraint("Horizontal", 1))
sketch8.addConstraint(Sketcher.Constraint("Vertical", 2))
sketch8.addConstraint(Sketcher.Constraint("Horizontal", 3))
sketch8.addConstraint(Sketcher.Constraint("DistanceX", 1, 1, 1, 2, 23.0))
sketch8.addConstraint(Sketcher.Constraint("DistanceY", 0, 2, 0, 1, 7.0))
sketch8.addConstraint(Sketcher.Constraint("DistanceX", 0, 2, -1, 1, 11.5))
sketch8.addConstraint(Sketcher.Constraint("DistanceY", 0, 2, -1, 1, 14.5))
sketch8.setExpression("Constraints[8]", "Params.sketch8_width")
sketch8.setExpression("Constraints[9]", "Params.sketch8_height")
pocket4 = body.newObject("PartDesign::Pocket", "Pocket003")
pocket4.Profile = sketch8
pocket4.Type = "ThroughAll"

sketch9 = body.newObject("Sketcher::SketchObject", "Sketch008")
sketch9.AttachmentSupport = (doc.getObject("XY_Plane"), [""])
sketch9.MapMode = "FlatFace"
sketch9.AttachmentOffset = App.Placement(V(0, 0, 2), App.Rotation())
sketch9.addGeometry(Part.LineSegment(V(-11, 15.5, 0), V(-11, 2.5, 0)), False)
sketch9.addGeometry(Part.ArcOfCircle(Part.Circle(V(-10, 2.5, 0), V(0, 0, 1), 1), math.radians(180), math.radians(360)), False)
sketch9.addGeometry(Part.LineSegment(V(-9, 2.5, 0), V(-9, 15.5, 0)), False)
sketch9.addGeometry(Part.ArcOfCircle(Part.Circle(V(-10, 15.5, 0), V(0, 0, 1), 1), math.radians(0), math.radians(180)), False)
sketch9.addGeometry(Part.LineSegment(V(-7, 15.5, 0), V(-7, 2.5, 0)), False)
sketch9.addGeometry(Part.ArcOfCircle(Part.Circle(V(-6, 2.5, 0), V(0, 0, 1), 1), math.radians(180), math.radians(360)), False)
sketch9.addGeometry(Part.LineSegment(V(-5, 2.5, 0), V(-5, 15.5, 0)), False)
sketch9.addGeometry(Part.ArcOfCircle(Part.Circle(V(-6, 15.5, 0), V(0, 0, 1), 1), math.radians(0), math.radians(180)), False)
sketch9.addGeometry(Part.LineSegment(V(-3, 15.5, 0), V(-3, 2.5, 0)), False)
sketch9.addGeometry(Part.ArcOfCircle(Part.Circle(V(-2, 2.5, 0), V(0, 0, 1), 1), math.radians(180), math.radians(360)), False)
sketch9.addGeometry(Part.LineSegment(V(-1, 2.5, 0), V(-1, 15.5, 0)), False)
sketch9.addGeometry(Part.ArcOfCircle(Part.Circle(V(-2, 15.5, 0), V(0, 0, 1), 1), math.radians(0), math.radians(180)), False)
sketch9.addGeometry(Part.LineSegment(V(1, 15.5, 0), V(1, 2.5, 0)), False)
sketch9.addGeometry(Part.ArcOfCircle(Part.Circle(V(2, 2.5, 0), V(0, 0, 1), 1), math.radians(180), math.radians(360)), False)
sketch9.addGeometry(Part.LineSegment(V(3, 2.5, 0), V(3, 15.5, 0)), False)
sketch9.addGeometry(Part.ArcOfCircle(Part.Circle(V(2, 15.5, 0), V(0, 0, 1), 1), math.radians(0), math.radians(180)), False)
sketch9.addGeometry(Part.LineSegment(V(5, 15.5, 0), V(5, 2.5, 0)), False)
sketch9.addGeometry(Part.ArcOfCircle(Part.Circle(V(6, 2.5, 0), V(0, 0, 1), 1), math.radians(180), math.radians(360)), False)
sketch9.addGeometry(Part.LineSegment(V(7, 2.5, 0), V(7, 15.5, 0)), False)
sketch9.addGeometry(Part.ArcOfCircle(Part.Circle(V(6, 15.5, 0), V(0, 0, 1), 1), math.radians(0), math.radians(180)), False)
sketch9.addGeometry(Part.LineSegment(V(9, 15.5, 0), V(9, 2.5, 0)), False)
sketch9.addGeometry(Part.ArcOfCircle(Part.Circle(V(10, 2.5, 0), V(0, 0, 1), 1), math.radians(180), math.radians(360)), False)
sketch9.addGeometry(Part.LineSegment(V(11, 2.5, 0), V(11, 15.5, 0)), False)
sketch9.addGeometry(Part.ArcOfCircle(Part.Circle(V(10, 15.5, 0), V(0, 0, 1), 1), math.radians(0), math.radians(180)), False)
sketch9.addConstraint(Sketcher.Constraint("Tangent", 0, 2, 1, 1))
sketch9.addConstraint(Sketcher.Constraint("Tangent", 1, 2, 2, 1))
sketch9.addConstraint(Sketcher.Constraint("Tangent", 2, 2, 3, 1))
sketch9.addConstraint(Sketcher.Constraint("Tangent", 3, 2, 0, 1))
sketch9.addConstraint(Sketcher.Constraint("Tangent", 4, 2, 5, 1))
sketch9.addConstraint(Sketcher.Constraint("Tangent", 5, 2, 6, 1))
sketch9.addConstraint(Sketcher.Constraint("Tangent", 6, 2, 7, 1))
sketch9.addConstraint(Sketcher.Constraint("Tangent", 7, 2, 4, 1))
sketch9.addConstraint(Sketcher.Constraint("Tangent", 8, 2, 9, 1))
sketch9.addConstraint(Sketcher.Constraint("Tangent", 9, 2, 10, 1))
sketch9.addConstraint(Sketcher.Constraint("Tangent", 10, 2, 11, 1))
sketch9.addConstraint(Sketcher.Constraint("Tangent", 11, 2, 8, 1))
sketch9.addConstraint(Sketcher.Constraint("Tangent", 12, 2, 13, 1))
sketch9.addConstraint(Sketcher.Constraint("Tangent", 13, 2, 14, 1))
sketch9.addConstraint(Sketcher.Constraint("Tangent", 14, 2, 15, 1))
sketch9.addConstraint(Sketcher.Constraint("Tangent", 15, 2, 12, 1))
sketch9.addConstraint(Sketcher.Constraint("Tangent", 16, 2, 17, 1))
sketch9.addConstraint(Sketcher.Constraint("Tangent", 17, 2, 18, 1))
sketch9.addConstraint(Sketcher.Constraint("Tangent", 18, 2, 19, 1))
sketch9.addConstraint(Sketcher.Constraint("Tangent", 19, 2, 16, 1))
sketch9.addConstraint(Sketcher.Constraint("Tangent", 20, 2, 21, 1))
sketch9.addConstraint(Sketcher.Constraint("Tangent", 21, 2, 22, 1))
sketch9.addConstraint(Sketcher.Constraint("Tangent", 22, 2, 23, 1))
sketch9.addConstraint(Sketcher.Constraint("Tangent", 23, 2, 20, 1))
sketch9.addConstraint(Sketcher.Constraint("Vertical", 0))
sketch9.addConstraint(Sketcher.Constraint("Vertical", 2))
sketch9.addConstraint(Sketcher.Constraint("Vertical", 4))
sketch9.addConstraint(Sketcher.Constraint("Vertical", 6))
sketch9.addConstraint(Sketcher.Constraint("Vertical", 8))
sketch9.addConstraint(Sketcher.Constraint("Vertical", 10))
sketch9.addConstraint(Sketcher.Constraint("Vertical", 12))
sketch9.addConstraint(Sketcher.Constraint("Vertical", 14))
sketch9.addConstraint(Sketcher.Constraint("Vertical", 16))
sketch9.addConstraint(Sketcher.Constraint("Vertical", 18))
sketch9.addConstraint(Sketcher.Constraint("Vertical", 20))
sketch9.addConstraint(Sketcher.Constraint("Vertical", 22))
sketch9.addConstraint(Sketcher.Constraint("Equal", 3, 5))
sketch9.addConstraint(Sketcher.Constraint("Equal", 7, 9))
sketch9.addConstraint(Sketcher.Constraint("Equal", 11, 13))
sketch9.addConstraint(Sketcher.Constraint("Equal", 15, 17))
sketch9.addConstraint(Sketcher.Constraint("Equal", 19, 21))
sketch9.addConstraint(Sketcher.Constraint("Symmetric", 9, 3, 13, 3, -2))
sketch9.addConstraint(Sketcher.Constraint("Symmetric", 5, 3, 17, 3, -2))
sketch9.addConstraint(Sketcher.Constraint("Symmetric", 1, 3, 21, 3, -2))
sketch9.addConstraint(Sketcher.Constraint("Horizontal", 1, 3, 5, 3))
sketch9.addConstraint(Sketcher.Constraint("Horizontal", 3, 3, 7, 3))
sketch9.addConstraint(Sketcher.Constraint("Horizontal", 5, 3, 9, 3))
sketch9.addConstraint(Sketcher.Constraint("Horizontal", 7, 3, 11, 3))
sketch9.addConstraint(Sketcher.Constraint("Horizontal", 11, 3, 15, 3))
sketch9.addConstraint(Sketcher.Constraint("Horizontal", 15, 3, 19, 3))
sketch9.addConstraint(Sketcher.Constraint("Horizontal", 19, 3, 23, 3))
sketch9.addConstraint(Sketcher.Constraint("Radius", 1, 1.0))
sketch9.addConstraint(Sketcher.Constraint("DistanceY", 0, 2, 0, 1, 13.0))
sketch9.addConstraint(Sketcher.Constraint("DistanceX", 1, 3, -1, 1, 10.0))
sketch9.addConstraint(Sketcher.Constraint("DistanceX", 5, 3, -1, 1, 6.0))
sketch9.addConstraint(Sketcher.Constraint("DistanceX", 9, 3, -1, 1, 2.0))
sketch9.addConstraint(Sketcher.Constraint("DistanceY", -1, 1, 1, 3, 2.5))
sketch9.setExpression("Constraints[51]", "Params.sketch9_radius")
sketch9.setExpression("Constraints[52]", "Params.sketch9_height")
pocket5 = body.newObject("PartDesign::Pocket", "Pocket004")
pocket5.Profile = sketch9
pocket5.setExpression("Length", "Params.pocket5_length")

sketch10 = body.newObject("Sketcher::SketchObject", "Sketch009")
sketch10.AttachmentSupport = (doc.getObject("XZ_Plane"), [""])
sketch10.MapMode = "FlatFace"
sketch10.AttachmentOffset = App.Placement(V(0, 0, 24.5), App.Rotation())
sketch10.addGeometry(Part.Circle(V(0, 25, 0), V(0, 0, 1), 1.6), False)
sketch10.addConstraint(Sketcher.Constraint("PointOnObject", 0, 3, -2))
sketch10.addConstraint(Sketcher.Constraint("Diameter", 0, 3.2))
sketch10.addConstraint(Sketcher.Constraint("DistanceY", -1, 1, 0, 3, 25.0))
sketch10.setExpression("Constraints[1]", "Params.sketch10_diameter")
pocket6 = body.newObject("PartDesign::Pocket", "Pocket005")
pocket6.Profile = sketch10
pocket6.Type = "ThroughAll"
doc.recompute()

fillet = body.newObject("PartDesign::Fillet", "Fillet")
fillet.Base = (pocket6, edges_at(pocket6, [
    (-35, 35, 1),
    (35, 35, 1),
    (35, -35, 1),
    (-35, -35, 1),
]))
fillet.setExpression("Radius", "Params.fillet_radius")

sketch11 = body.newObject("Sketcher::SketchObject", "Sketch010")
sketch11.AttachmentSupport = (doc.getObject("XY_Plane"), [""])
sketch11.MapMode = "FlatFace"
sketch11.AttachmentOffset = App.Placement(V(0, 0, 2), App.Rotation())
sketch11.addGeometry(Part.Circle(V(22.5, 22.5, 0), V(0, 0, 1), 2), False)
sketch11.addGeometry(Part.Circle(V(-22.5, 22.5, 0), V(0, 0, 1), 2), False)
sketch11.addGeometry(Part.Circle(V(22.5, 0.6, 0), V(0, 0, 1), 2), False)
sketch11.addGeometry(Part.Circle(V(0, -22.5, 0), V(0, 0, 1), 2), False)
sketch11.addGeometry(Part.Circle(V(-22.5, -22.5, 0), V(0, 0, 1), 2), False)
sketch11.addConstraint(Sketcher.Constraint("Equal", 0, 1))
sketch11.addConstraint(Sketcher.Constraint("Equal", 1, 2))
sketch11.addConstraint(Sketcher.Constraint("Equal", 2, 3))
sketch11.addConstraint(Sketcher.Constraint("Equal", 3, 4))
sketch11.addConstraint(Sketcher.Constraint("Symmetric", 0, 3, 4, 3, -1, 1))
sketch11.addConstraint(Sketcher.Constraint("Symmetric", 0, 3, 1, 3, -2))
sketch11.addConstraint(Sketcher.Constraint("PointOnObject", 3, 3, -2))
sketch11.addConstraint(Sketcher.Constraint("Horizontal", 3, 3, 4, 3))
sketch11.addConstraint(Sketcher.Constraint("Vertical", 0, 3, 2, 3))
sketch11.addConstraint(Sketcher.Constraint("Diameter", 0, 4.0))
sketch11.addConstraint(Sketcher.Constraint("DistanceX", 1, 3, 0, 3, 45.0))
sketch11.addConstraint(Sketcher.Constraint("DistanceY", 3, 3, 0, 3, 45.0))
sketch11.addConstraint(Sketcher.Constraint("DistanceY", -1, 1, 2, 3, 0.6))
sketch11.setExpression("Constraints[9]", "Params.sketch11_diameter")
pad5 = body.newObject("PartDesign::Pad", "Pad004")
pad5.Profile = sketch11
pad5.setExpression("Length", "Params.pad5_length")

doc.recompute()
